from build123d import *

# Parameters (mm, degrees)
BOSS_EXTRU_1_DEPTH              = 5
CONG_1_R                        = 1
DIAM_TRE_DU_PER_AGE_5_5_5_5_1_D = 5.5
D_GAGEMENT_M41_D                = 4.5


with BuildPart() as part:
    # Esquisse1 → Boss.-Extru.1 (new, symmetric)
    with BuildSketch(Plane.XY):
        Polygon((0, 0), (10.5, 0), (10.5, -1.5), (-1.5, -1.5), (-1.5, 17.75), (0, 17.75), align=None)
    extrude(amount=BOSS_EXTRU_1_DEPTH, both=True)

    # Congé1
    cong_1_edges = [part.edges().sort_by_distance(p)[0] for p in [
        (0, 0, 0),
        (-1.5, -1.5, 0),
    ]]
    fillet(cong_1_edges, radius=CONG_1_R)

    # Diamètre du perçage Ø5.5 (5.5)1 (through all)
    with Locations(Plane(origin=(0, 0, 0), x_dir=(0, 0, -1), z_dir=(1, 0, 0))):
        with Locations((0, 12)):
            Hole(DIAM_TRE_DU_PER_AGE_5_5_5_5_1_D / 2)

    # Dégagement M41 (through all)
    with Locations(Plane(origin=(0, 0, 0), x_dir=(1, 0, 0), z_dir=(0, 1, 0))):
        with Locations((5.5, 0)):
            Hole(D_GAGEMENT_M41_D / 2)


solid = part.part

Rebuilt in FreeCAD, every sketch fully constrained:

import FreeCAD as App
import Part
import Sketcher

V = App.Vector
Q = App.Units.Quantity


def edges_at(feature, points):
    """Names of the edges that pass closest to the given points."""
    edges = feature.Shape.Edges
    near = lambda p: min(range(len(edges)), key=lambda i: edges[i].distToShape(Part.Vertex(*p))[0])
    return sorted({f"Edge{near(p) + 1}" for p in points})


def add_polygon(sketch, points):
    """Adds a closed chain of lines whose ends are joined by coincident constraints."""
    first, n = sketch.GeometryCount, len(points)
    for a, b in zip(points, points[1:] + points[:1]):
        sketch.addGeometry(Part.LineSegment(App.Vector(*a, 0), App.Vector(*b, 0)), False)
    for i in range(n):
        sketch.addConstraint(Sketcher.Constraint("Coincident", first + i, 2, first + (i + 1) % n, 1))

doc = App.newDocument("Part")
body = doc.addObject("PartDesign::Body", "Body")

# Sketch on XY plane
sketch1 = doc.addObject("Sketcher::SketchObject", "Sketch")
body.addObject(sketch1)
sketch1.AttachmentSupport = (doc.XY_Plane, [""])
sketch1.MapMode = "FlatFace"
add_polygon(sketch1, [(10.5, 0), (0, 0), (0, 17.8), (-1.5, 17.8), (-1.5, -1.5), (10.5, -1.5)])  # lines 0-5
sketch1.addConstraint([
    Sketcher.Constraint("Horizontal", 0),
    Sketcher.Constraint("Vertical", 1),
    Sketcher.Constraint("Horizontal", 2),
    Sketcher.Constraint("Vertical", 3),
    Sketcher.Constraint("Horizontal", 4),
    Sketcher.Constraint("Vertical", 5),
    Sketcher.Constraint("Coincident", 0, 2, -1, 1),
    Sketcher.Constraint("Equal", 2, 5),
    Sketcher.Constraint("DistanceX", 4, 1, 4, 2, Q("12 mm")),
    Sketcher.Constraint("DistanceX", 0, 2, 0, 1, Q("10.5 mm")),
    Sketcher.Constraint("DistanceY", 1, 1, 1, 2, Q("17.75 mm")),
])
pad1 = doc.addObject("PartDesign::Pad", "Pad")
body.addObject(pad1)
pad1.Profile = sketch1
pad1.Length = 10
pad1.Midplane = True
doc.recompute()

fillet = doc.addObject("PartDesign::Fillet", "Fillet")
body.addObject(fillet)
fillet.Base = (pad1, edges_at(pad1, [(0, 0, 0), (-1.5, -1.5, 0)]))
fillet.Radius = 1

# Sketch on YZ plane
sketch2 = doc.addObject("Sketcher::SketchObject", "Sketch001")
body.addObject(sketch2)
sketch2.AttachmentSupport = (doc.YZ_Plane, [""])
sketch2.MapMode = "FlatFace"
sketch2.addGeometry(Part.Circle(V(12, 0, 0), V(0, 0, 1), 2.8), False)
sketch2.addConstraint([
    Sketcher.Constraint("PointOnObject", 0, 3, -1),
    Sketcher.Constraint("Diameter", 0, Q("5.5 mm")),
    Sketcher.Constraint("DistanceX", -1, 1, 0, 3, Q("12 mm")),
])
doc.recompute()
hole = doc.addObject("PartDesign::Hole", "Hole")
body.addObject(hole)
hole.Profile = sketch2
hole.ThreadType = "None"
hole.Diameter = 5.5
hole.DepthType = "ThroughAll"

# Sketch on XZ plane
sketch3 = doc.addObject("Sketcher::SketchObject", "Sketch002")
body.addObject(sketch3)
sketch3.AttachmentSupport = (doc.XZ_Plane, [""])
sketch3.MapMode = "FlatFace"
sketch3.addGeometry(Part.Circle(V(5.5, 0, 0), V(0, 0, 1), 2.2), False)
sketch3.addConstraint([
    Sketcher.Constraint("PointOnObject", 0, 3, -1),
    Sketcher.Constraint("Diameter", 0, Q("4.5 mm")),
    Sketcher.Constraint("DistanceX", -1, 1, 0, 3, Q("5.5 mm")),
])
doc.recompute()
hole2 = doc.addObject("PartDesign::Hole", "Hole001")
body.addObject(hole2)
hole2.Profile = sketch3
hole2.ThreadType = "None"
hole2.Diameter = 4.5
hole2.DepthType = "ThroughAll"
hole2.Reversed = True

doc.recompute()
